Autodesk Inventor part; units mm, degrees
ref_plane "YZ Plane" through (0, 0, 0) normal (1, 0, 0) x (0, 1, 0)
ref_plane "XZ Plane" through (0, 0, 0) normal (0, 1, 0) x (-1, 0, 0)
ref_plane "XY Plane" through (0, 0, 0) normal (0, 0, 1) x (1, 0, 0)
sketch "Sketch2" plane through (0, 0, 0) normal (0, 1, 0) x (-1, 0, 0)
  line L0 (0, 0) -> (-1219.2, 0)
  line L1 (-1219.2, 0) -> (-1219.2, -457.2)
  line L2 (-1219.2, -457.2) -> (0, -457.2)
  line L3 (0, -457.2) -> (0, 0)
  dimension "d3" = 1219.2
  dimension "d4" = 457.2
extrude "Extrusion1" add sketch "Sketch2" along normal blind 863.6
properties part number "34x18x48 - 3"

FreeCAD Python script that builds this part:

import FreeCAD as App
import Part
import Sketcher
from FreeCAD import Vector
Q = App.Units.Quantity

doc = App.newDocument("Part")
body = doc.addObject("PartDesign::Body", "Body")

# Sketch on XZ plane
sketch1 = body.newObject("Sketcher::SketchObject", "Sketch")
sketch1.AttachmentSupport = (doc.getObject("XZ_Plane"), [""])
sketch1.MapMode = "FlatFace"
sketch1.addGeometry(Part.LineSegment(Vector(0, -457.2, 0), Vector(0, 0, 0)), False)
sketch1.addGeometry(Part.LineSegment(Vector(0, 0, 0), Vector(1219.2, 0, 0)), False)
sketch1.addGeometry(Part.LineSegment(Vector(1219.2, 0, 0), Vector(1219.2, -457.2, 0)), False)
sketch1.addGeometry(Part.LineSegment(Vector(1219.2, -457.2, 0), Vector(0, -457.2, 0)), False)
sketch1.addConstraint(Sketcher.Constraint("Coincident", 0, 2, 1, 1))
sketch1.addConstraint(Sketcher.Constraint("Coincident", 1, 2, 2, 1))
sketch1.addConstraint(Sketcher.Constraint("Coincident", 2, 2, 3, 1))
sketch1.addConstraint(Sketcher.Constraint("Coincident", 3, 2, 0, 1))
sketch1.addConstraint(Sketcher.Constraint("Vertical", 0))
sketch1.addConstraint(Sketcher.Constraint("Horizontal", 1))
sketch1.addConstraint(Sketcher.Constraint("Vertical", 2))
sketch1.addConstraint(Sketcher.Constraint("Horizontal", 3))
sketch1.addConstraint(Sketcher.Constraint("Coincident", 0, 2, -1, 1))
sketch1.addConstraint(Sketcher.Constraint("DistanceX", 1, 1, 1, 2, Q("48 in")))
sketch1.addConstraint(Sketcher.Constraint("DistanceY", 0, 1, 0, 2, Q("18 in")))
pad1 = body.newObject("PartDesign::Pad", "Pad")
pad1.Profile = sketch1
pad1.Length = Q("34 in")
pad1.Reversed = True

doc.recompute()
